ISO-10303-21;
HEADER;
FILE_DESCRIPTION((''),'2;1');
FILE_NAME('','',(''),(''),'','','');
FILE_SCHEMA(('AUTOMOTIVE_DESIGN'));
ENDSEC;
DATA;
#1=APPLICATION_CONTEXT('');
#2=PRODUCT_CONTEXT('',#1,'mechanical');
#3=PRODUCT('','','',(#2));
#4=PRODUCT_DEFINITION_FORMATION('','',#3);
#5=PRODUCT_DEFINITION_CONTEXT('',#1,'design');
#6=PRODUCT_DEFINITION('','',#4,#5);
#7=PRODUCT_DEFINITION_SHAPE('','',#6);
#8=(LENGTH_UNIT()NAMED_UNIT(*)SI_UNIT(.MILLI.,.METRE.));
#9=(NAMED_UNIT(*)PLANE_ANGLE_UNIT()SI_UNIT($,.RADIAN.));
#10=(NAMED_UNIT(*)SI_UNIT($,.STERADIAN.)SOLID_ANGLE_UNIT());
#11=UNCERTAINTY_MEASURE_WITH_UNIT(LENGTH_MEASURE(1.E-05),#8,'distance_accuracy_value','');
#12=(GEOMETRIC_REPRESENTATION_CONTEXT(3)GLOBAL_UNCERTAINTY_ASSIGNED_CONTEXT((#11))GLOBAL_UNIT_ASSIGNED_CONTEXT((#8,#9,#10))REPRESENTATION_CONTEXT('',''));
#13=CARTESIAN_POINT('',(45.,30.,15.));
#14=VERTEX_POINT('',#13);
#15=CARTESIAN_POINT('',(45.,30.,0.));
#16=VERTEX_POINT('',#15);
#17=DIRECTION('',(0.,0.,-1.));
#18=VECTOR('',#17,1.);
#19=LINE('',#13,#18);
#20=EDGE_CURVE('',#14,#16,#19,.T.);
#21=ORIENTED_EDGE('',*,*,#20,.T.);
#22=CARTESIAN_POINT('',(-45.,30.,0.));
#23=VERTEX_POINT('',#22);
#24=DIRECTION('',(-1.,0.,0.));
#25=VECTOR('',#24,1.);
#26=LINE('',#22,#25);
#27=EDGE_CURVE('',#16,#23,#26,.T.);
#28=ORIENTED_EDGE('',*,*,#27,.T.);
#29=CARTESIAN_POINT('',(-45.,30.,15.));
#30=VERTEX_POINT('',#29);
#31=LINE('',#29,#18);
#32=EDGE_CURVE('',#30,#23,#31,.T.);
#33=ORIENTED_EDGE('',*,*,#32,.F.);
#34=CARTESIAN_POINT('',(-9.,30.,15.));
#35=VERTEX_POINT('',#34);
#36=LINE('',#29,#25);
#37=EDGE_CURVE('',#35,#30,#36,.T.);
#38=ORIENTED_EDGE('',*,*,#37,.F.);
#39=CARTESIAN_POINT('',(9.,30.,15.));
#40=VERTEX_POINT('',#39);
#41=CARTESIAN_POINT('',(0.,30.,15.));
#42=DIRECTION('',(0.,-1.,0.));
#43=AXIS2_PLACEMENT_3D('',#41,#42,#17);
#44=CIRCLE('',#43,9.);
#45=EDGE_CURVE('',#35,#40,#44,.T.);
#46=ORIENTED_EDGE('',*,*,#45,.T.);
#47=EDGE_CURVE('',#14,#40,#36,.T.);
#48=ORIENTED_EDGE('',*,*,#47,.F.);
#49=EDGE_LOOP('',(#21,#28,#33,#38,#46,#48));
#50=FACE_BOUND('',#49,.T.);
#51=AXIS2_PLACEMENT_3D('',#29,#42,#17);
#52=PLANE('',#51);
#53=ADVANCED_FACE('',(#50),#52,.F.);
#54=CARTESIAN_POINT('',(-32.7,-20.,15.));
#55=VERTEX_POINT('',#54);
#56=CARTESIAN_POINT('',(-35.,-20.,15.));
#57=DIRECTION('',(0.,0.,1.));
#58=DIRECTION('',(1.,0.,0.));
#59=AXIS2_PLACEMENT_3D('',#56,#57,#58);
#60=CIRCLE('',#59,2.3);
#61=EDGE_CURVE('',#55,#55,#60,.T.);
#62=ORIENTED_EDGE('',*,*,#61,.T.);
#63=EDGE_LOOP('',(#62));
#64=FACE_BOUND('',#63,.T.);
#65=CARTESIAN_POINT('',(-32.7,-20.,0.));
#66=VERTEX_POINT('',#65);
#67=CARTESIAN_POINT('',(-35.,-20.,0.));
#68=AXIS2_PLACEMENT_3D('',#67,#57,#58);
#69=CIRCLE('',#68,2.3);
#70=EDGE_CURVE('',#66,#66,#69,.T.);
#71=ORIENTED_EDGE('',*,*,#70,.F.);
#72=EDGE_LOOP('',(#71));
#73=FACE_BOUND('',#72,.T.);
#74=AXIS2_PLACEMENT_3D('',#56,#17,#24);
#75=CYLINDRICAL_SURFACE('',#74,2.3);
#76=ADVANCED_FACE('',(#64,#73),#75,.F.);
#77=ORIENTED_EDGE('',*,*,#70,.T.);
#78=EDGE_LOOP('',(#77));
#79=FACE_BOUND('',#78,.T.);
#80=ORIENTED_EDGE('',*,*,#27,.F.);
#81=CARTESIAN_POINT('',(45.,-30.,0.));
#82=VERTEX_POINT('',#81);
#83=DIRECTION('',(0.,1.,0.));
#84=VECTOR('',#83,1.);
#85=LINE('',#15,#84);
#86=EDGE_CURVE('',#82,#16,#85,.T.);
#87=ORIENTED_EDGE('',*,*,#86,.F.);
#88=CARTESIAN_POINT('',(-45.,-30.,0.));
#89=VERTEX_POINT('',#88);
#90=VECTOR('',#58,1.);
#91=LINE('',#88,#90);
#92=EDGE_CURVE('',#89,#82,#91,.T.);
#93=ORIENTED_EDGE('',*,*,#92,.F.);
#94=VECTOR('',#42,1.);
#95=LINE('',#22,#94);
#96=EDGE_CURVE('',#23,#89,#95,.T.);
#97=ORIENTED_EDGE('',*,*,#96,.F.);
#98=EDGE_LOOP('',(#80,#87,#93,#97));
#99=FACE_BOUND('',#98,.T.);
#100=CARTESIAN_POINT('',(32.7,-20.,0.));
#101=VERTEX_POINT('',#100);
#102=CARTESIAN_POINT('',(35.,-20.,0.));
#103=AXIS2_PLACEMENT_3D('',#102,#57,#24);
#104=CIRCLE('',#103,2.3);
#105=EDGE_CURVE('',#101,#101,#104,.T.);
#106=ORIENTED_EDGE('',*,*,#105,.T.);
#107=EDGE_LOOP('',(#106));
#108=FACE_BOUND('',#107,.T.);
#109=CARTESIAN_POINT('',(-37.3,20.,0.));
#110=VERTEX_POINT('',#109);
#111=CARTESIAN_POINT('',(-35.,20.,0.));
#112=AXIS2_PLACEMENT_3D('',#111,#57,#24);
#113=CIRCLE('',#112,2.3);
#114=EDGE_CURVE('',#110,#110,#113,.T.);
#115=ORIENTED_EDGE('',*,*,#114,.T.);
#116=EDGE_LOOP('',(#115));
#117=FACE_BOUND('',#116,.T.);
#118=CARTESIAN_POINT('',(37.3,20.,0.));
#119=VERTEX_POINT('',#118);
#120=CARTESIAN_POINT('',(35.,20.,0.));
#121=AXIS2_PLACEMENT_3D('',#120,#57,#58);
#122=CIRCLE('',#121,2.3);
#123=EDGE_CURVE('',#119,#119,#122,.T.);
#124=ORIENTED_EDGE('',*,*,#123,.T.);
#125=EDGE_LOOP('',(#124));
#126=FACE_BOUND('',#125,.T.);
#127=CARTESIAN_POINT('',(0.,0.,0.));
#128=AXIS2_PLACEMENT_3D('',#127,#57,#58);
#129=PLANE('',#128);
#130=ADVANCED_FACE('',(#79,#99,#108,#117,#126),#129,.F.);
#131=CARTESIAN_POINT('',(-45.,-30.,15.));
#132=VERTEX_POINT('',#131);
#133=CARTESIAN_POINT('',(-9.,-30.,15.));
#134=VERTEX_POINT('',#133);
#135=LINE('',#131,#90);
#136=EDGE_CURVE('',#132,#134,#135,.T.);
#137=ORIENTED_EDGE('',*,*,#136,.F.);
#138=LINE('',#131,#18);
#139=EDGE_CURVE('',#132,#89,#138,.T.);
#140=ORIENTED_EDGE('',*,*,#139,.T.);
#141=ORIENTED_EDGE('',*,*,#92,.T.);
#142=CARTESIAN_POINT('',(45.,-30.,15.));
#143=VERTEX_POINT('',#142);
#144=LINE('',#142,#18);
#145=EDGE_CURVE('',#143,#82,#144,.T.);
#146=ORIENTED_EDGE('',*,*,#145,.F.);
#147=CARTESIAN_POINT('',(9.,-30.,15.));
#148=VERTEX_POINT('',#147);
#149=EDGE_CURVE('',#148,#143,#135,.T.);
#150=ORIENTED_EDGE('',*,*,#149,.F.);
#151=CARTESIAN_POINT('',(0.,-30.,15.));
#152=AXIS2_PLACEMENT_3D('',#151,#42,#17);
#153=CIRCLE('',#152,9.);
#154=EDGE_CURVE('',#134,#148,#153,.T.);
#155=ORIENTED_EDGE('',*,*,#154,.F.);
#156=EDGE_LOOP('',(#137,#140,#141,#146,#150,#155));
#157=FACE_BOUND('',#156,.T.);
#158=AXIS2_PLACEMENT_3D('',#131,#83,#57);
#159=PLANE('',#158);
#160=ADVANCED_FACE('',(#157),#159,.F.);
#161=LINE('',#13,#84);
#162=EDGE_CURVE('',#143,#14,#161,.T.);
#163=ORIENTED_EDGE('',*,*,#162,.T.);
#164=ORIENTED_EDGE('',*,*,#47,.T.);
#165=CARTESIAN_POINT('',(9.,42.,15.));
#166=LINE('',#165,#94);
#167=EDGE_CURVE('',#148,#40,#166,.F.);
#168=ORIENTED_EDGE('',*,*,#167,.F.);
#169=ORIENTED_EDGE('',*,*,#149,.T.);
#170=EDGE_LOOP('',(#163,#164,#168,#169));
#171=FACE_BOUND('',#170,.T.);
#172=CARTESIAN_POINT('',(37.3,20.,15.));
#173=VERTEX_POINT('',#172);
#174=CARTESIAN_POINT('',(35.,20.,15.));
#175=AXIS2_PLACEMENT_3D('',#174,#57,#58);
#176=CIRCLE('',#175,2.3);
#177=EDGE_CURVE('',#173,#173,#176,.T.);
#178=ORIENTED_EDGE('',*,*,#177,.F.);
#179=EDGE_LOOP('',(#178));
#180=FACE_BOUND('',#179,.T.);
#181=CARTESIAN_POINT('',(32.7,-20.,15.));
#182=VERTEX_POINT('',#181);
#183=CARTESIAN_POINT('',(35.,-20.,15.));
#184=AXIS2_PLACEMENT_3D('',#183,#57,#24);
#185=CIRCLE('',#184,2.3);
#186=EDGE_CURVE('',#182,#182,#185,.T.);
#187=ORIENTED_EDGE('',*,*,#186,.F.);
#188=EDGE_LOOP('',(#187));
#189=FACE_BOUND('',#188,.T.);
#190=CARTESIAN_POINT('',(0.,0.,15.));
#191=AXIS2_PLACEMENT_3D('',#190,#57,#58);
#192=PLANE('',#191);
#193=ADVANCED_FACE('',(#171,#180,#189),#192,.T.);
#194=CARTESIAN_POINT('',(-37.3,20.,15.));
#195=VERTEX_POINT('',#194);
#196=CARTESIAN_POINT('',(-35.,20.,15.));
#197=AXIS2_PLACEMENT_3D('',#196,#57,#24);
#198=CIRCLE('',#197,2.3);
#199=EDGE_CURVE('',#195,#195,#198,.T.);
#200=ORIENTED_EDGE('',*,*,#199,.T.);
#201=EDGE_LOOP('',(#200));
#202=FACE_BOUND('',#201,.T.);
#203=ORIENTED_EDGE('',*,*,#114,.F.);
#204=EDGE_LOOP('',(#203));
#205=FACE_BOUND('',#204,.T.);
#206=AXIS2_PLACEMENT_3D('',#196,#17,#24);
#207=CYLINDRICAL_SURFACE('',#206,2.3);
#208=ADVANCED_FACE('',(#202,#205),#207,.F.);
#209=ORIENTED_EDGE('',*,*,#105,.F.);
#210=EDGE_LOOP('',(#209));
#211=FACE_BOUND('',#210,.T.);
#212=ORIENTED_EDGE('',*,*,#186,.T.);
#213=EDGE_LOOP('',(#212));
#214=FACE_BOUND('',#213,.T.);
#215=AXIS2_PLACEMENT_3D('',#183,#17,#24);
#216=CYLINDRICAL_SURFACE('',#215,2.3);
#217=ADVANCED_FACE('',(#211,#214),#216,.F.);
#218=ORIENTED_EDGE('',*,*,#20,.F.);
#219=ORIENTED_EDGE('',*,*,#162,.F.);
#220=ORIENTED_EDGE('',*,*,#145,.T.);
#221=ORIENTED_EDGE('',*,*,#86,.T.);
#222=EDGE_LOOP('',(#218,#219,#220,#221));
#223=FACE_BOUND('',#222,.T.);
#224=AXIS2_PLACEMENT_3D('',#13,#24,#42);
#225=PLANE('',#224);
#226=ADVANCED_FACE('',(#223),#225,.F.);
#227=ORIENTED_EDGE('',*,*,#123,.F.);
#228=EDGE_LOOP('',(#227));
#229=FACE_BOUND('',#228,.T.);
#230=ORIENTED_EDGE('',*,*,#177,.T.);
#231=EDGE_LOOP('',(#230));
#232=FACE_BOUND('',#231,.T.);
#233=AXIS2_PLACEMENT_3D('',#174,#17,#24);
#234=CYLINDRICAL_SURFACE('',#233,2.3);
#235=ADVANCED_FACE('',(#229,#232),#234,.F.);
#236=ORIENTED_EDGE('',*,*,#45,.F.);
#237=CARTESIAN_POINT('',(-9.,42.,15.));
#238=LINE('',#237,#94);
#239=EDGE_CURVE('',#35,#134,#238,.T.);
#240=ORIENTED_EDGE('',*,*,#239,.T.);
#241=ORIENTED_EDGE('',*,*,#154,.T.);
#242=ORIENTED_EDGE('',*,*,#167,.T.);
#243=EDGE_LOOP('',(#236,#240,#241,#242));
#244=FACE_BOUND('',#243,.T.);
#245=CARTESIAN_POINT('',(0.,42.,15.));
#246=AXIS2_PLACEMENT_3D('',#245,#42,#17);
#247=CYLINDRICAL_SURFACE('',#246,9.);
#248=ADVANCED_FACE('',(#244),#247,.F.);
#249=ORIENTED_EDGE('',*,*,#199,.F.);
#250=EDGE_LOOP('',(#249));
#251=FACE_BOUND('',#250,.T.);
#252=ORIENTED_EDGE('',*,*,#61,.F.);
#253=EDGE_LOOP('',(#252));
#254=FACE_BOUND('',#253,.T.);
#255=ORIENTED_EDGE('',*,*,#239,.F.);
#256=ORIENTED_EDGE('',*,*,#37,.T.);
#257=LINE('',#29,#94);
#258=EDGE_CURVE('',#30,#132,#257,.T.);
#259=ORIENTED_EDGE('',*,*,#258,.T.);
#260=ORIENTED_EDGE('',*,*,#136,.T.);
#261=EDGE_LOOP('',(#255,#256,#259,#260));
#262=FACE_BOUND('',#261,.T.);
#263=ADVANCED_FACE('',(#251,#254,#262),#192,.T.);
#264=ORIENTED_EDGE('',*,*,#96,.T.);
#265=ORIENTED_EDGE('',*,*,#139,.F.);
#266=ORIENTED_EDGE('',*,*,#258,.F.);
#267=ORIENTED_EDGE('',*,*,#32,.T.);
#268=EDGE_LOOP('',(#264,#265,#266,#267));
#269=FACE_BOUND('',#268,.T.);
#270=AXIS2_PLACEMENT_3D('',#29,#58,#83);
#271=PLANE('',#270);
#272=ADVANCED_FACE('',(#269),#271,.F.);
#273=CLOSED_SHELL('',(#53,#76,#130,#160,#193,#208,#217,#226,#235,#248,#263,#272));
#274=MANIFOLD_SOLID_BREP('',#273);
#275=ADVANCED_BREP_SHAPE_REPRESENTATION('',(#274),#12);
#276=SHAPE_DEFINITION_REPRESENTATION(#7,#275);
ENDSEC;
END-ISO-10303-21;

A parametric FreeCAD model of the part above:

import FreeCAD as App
import Part
import Sketcher
from FreeCAD import Vector


def add_polygon(sketch, points):
    """Adds a closed chain of lines whose ends are joined by coincident constraints."""
    first, n = sketch.GeometryCount, len(points)
    for a, b in zip(points, points[1:] + points[:1]):
        sketch.addGeometry(Part.LineSegment(App.Vector(*a, 0), App.Vector(*b, 0)), False)
    for i in range(n):
        sketch.addConstraint(Sketcher.Constraint("Coincident", first + i, 2, first + (i + 1) % n, 1))

doc = App.newDocument("Part")
body = doc.addObject("PartDesign::Body", "Body")

sketch1 = doc.addObject("Sketcher::SketchObject", "Sketch")
body.addObject(sketch1)
sketch1.AttachmentSupport = (doc.XY_Plane, [""])
sketch1.MapMode = "FlatFace"
add_polygon(sketch1, [(-45, 30), (-45, -30), (45, -30), (45, 30)])
sketch1.addGeometry(Part.Circle(Vector(-35, -20, 0), Vector(0, 0, 1), 2.3), False)
sketch1.addGeometry(Part.Circle(Vector(35, -20, 0), Vector(0, 0, 1), 2.3), False)
sketch1.addGeometry(Part.Circle(Vector(-35, 20, 0), Vector(0, 0, 1), 2.3), False)
sketch1.addGeometry(Part.Circle(Vector(35, 20, 0), Vector(0, 0, 1), 2.3), False)
sketch1.addConstraint(Sketcher.Constraint("Vertical", 0))
sketch1.addConstraint(Sketcher.Constraint("Horizontal", 1))
sketch1.addConstraint(Sketcher.Constraint("Vertical", 2))
sketch1.addConstraint(Sketcher.Constraint("Horizontal", 3))
sketch1.addConstraint(Sketcher.Constraint("Equal", 4, 5))
sketch1.addConstraint(Sketcher.Constraint("Equal", 5, 6))
sketch1.addConstraint(Sketcher.Constraint("Equal", 6, 7))
sketch1.addConstraint(Sketcher.Constraint("Symmetric", 5, 3, 6, 3, -1, 1))
sketch1.addConstraint(Sketcher.Constraint("Symmetric", 4, 3, 7, 3, -1, 1))
sketch1.addConstraint(Sketcher.Constraint("Symmetric", 0, 2, 2, 2, -1, 1))
sketch1.addConstraint(Sketcher.Constraint("Symmetric", 4, 3, 5, 3, -2))
sketch1.addConstraint(Sketcher.Constraint("Diameter", 4, 4.6))
sketch1.addConstraint(Sketcher.Constraint("DistanceX", 1, 1, 1, 2, 90.0))
sketch1.addConstraint(Sketcher.Constraint("DistanceY", 0, 2, 0, 1, 60.0))
sketch1.addConstraint(Sketcher.Constraint("DistanceX", 4, 3, -1, 1, 35.0))
sketch1.addConstraint(Sketcher.Constraint("DistanceY", 4, 3, -1, 1, 20.0))
pad1 = doc.addObject("PartDesign::Pad", "Pad")
body.addObject(pad1)
pad1.Profile = sketch1
pad1.Length = 15

sketch2 = doc.addObject("Sketcher::SketchObject", "Sketch001")
body.addObject(sketch2)
sketch2.AttachmentSupport = (doc.XZ_Plane, [""])
sketch2.MapMode = "FlatFace"
sketch2.AttachmentOffset = App.Placement(Vector(0, 0, 30), App.Rotation())
sketch2.addGeometry(Part.Circle(Vector(0, 15, 0), Vector(0, 0, 1), 9), False)
sketch2.addConstraint(Sketcher.Constraint("PointOnObject", 0, 3, -2))
sketch2.addConstraint(Sketcher.Constraint("Diameter", 0, 18.0))
sketch2.addConstraint(Sketcher.Constraint("DistanceY", -1, 1, 0, 3, 15.0))
pocket1 = doc.addObject("PartDesign::Pocket", "Pocket")
body.addObject(pocket1)
pocket1.Profile = sketch2
pocket1.Length = 72

doc.recompute()
